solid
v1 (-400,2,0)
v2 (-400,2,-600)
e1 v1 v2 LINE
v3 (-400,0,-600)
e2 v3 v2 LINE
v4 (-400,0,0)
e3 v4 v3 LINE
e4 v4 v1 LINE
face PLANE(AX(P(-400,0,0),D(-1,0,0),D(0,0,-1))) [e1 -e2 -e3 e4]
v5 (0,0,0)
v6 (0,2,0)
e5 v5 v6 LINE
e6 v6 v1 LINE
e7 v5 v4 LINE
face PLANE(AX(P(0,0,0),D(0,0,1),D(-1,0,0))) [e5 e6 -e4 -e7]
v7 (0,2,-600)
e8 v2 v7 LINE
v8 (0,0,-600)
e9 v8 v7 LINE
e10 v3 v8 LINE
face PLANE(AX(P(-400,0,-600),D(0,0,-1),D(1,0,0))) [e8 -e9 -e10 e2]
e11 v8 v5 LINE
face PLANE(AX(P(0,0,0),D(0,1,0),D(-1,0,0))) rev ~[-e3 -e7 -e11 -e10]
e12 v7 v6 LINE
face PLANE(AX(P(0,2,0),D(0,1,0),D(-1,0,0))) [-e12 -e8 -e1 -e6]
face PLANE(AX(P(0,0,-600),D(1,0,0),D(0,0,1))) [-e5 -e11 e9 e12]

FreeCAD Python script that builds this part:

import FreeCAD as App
import Part
import Sketcher

doc = App.newDocument("Part")
body = doc.addObject("PartDesign::Body", "Body")

sketch1 = body.newObject("Sketcher::SketchObject", "Sketch")
sketch1.AttachmentSupport = (doc.getObject("XZ_Plane"), [""])
sketch1.MapMode = "FlatFace"
sketch1.addGeometry(Part.LineSegment(App.Vector(-400, 0, 0), App.Vector(0, 0, 0)), False)
sketch1.addGeometry(Part.LineSegment(App.Vector(0, 0, 0), App.Vector(0, -600, 0)), False)
sketch1.addGeometry(Part.LineSegment(App.Vector(0, -600, 0), App.Vector(-400, -600, 0)), False)
sketch1.addGeometry(Part.LineSegment(App.Vector(-400, -600, 0), App.Vector(-400, 0, 0)), False)
sketch1.addConstraint(Sketcher.Constraint("Coincident", 0, 2, 1, 1))
sketch1.addConstraint(Sketcher.Constraint("Coincident", 1, 2, 2, 1))
sketch1.addConstraint(Sketcher.Constraint("Coincident", 2, 2, 3, 1))
sketch1.addConstraint(Sketcher.Constraint("Coincident", 3, 2, 0, 1))
sketch1.addConstraint(Sketcher.Constraint("Horizontal", 0))
sketch1.addConstraint(Sketcher.Constraint("Vertical", 1))
sketch1.addConstraint(Sketcher.Constraint("Horizontal", 2))
sketch1.addConstraint(Sketcher.Constraint("Vertical", 3))
sketch1.addConstraint(Sketcher.Constraint("Coincident", 0, 2, -1, 1))
sketch1.addConstraint(Sketcher.Constraint("DistanceX", 0, 1, 0, 2, 400.0))
sketch1.addConstraint(Sketcher.Constraint("DistanceY", 1, 2, 1, 1, 600.0))
pad1 = body.newObject("PartDesign::Pad", "Pad")
pad1.Profile = sketch1
pad1.Length = 2
pad1.Reversed = True

doc.recompute()
